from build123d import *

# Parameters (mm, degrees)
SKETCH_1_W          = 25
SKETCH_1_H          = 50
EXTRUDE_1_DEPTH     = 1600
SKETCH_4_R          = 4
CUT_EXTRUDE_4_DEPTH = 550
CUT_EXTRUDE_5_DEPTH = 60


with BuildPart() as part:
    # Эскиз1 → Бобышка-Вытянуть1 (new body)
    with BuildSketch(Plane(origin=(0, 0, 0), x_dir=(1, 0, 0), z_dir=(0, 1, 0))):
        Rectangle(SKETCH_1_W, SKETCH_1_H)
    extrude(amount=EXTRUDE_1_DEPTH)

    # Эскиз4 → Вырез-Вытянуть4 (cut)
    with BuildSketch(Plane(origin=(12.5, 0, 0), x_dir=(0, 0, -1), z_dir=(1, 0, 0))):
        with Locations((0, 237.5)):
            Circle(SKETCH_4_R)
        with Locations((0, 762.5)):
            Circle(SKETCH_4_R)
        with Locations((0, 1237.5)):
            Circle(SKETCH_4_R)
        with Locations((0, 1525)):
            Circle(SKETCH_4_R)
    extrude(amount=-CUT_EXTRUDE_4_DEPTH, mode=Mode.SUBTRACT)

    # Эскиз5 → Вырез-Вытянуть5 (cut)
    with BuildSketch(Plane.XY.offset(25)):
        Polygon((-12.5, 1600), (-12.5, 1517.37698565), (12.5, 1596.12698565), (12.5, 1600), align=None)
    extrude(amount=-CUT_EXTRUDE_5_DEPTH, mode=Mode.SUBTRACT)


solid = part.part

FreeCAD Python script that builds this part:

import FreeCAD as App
import Part
import Sketcher

V = App.Vector


def add_polygon(sketch, points):
    """Adds a closed chain of lines whose ends are joined by coincident constraints."""
    first, n = sketch.GeometryCount, len(points)
    for a, b in zip(points, points[1:] + points[:1]):
        sketch.addGeometry(Part.LineSegment(App.Vector(*a, 0), App.Vector(*b, 0)), False)
    for i in range(n):
        sketch.addConstraint(Sketcher.Constraint("Coincident", first + i, 2, first + (i + 1) % n, 1))

doc = App.newDocument("Part")
body = doc.addObject("PartDesign::Body", "Body")

sketch1 = body.newObject("Sketcher::SketchObject", "Sketch")
sketch1.AttachmentSupport = (doc.getObject("XZ_Plane"), [""])
sketch1.MapMode = "FlatFace"
add_polygon(sketch1, [(-12.5, -25), (-12.5, 25), (12.5, 25), (12.5, -25)])
sketch1.addConstraint([
    Sketcher.Constraint("Vertical", 0),
    Sketcher.Constraint("Horizontal", 1),
    Sketcher.Constraint("Vertical", 2),
    Sketcher.Constraint("Horizontal", 3),
    Sketcher.Constraint("Symmetric", 0, 2, 2, 2, -1, 1),
    Sketcher.Constraint("DistanceX", 1, 1, 1, 2, 25.0),
    Sketcher.Constraint("DistanceY", 0, 1, 0, 2, 50.0),
])
pad1 = body.newObject("PartDesign::Pad", "Pad")
pad1.Profile = sketch1
pad1.Length = 1600
pad1.Reversed = True

sketch2 = body.newObject("Sketcher::SketchObject", "Sketch001")
sketch2.AttachmentSupport = (doc.getObject("YZ_Plane"), [""])
sketch2.MapMode = "FlatFace"
sketch2.AttachmentOffset = App.Placement(V(0, 0, 12.5), App.Rotation())
sketch2.addGeometry([
    Part.Circle(V(237.5, 0, 0), V(0, 0, 1), 4),
    Part.Circle(V(762.5, 0, 0), V(0, 0, 1), 4),
    Part.Circle(V(1237.5, 0, 0), V(0, 0, 1), 4),
    Part.Circle(V(1525, 0, 0), V(0, 0, 1), 4),
], False)
sketch2.addConstraint([
    Sketcher.Constraint("Equal", 0, 1),
    Sketcher.Constraint("Equal", 1, 2),
    Sketcher.Constraint("Equal", 2, 3),
    Sketcher.Constraint("PointOnObject", 0, 3, -1),
    Sketcher.Constraint("PointOnObject", 1, 3, -1),
    Sketcher.Constraint("PointOnObject", 2, 3, -1),
    Sketcher.Constraint("PointOnObject", 3, 3, -1),
    Sketcher.Constraint("Diameter", 0, 8.0),
    Sketcher.Constraint("DistanceX", -1, 1, 3, 3, 1525.0),
    Sketcher.Constraint("DistanceX", 0, 3, 1, 3, 525.0),
    Sketcher.Constraint("DistanceX", 1, 3, 2, 3, 475.0),
    Sketcher.Constraint("DistanceX", -1, 1, 0, 3, 237.5),
])
pocket1 = body.newObject("PartDesign::Pocket", "Pocket")
pocket1.Profile = sketch2
pocket1.Length = 550

sketch3 = body.newObject("Sketcher::SketchObject", "Sketch002")
sketch3.AttachmentSupport = (doc.getObject("XY_Plane"), [""])
sketch3.MapMode = "FlatFace"
sketch3.AttachmentOffset = App.Placement(V(0, 0, 25), App.Rotation())
add_polygon(sketch3, [(-12.5, 1600), (-12.5, 1517.376986), (12.5, 1596.126986), (12.5, 1600)])
sketch3.addConstraint([
    Sketcher.Constraint("Vertical", 0),
    Sketcher.Constraint("Vertical", 2),
    Sketcher.Constraint("Horizontal", 3),
    Sketcher.Constraint("DistanceX", 3, 2, 3, 1, 25.0),
    Sketcher.Constraint("DistanceY", -1, 1, 2, 2, 1600.0),
    Sketcher.Constraint("DistanceX", 0, 2, -1, 1, 12.5),
    Sketcher.Constraint("DistanceY", 0, 2, 1, 2, 78.75),
    Sketcher.Constraint("DistanceY", 0, 2, 0, 1, 82.623014),
])
pocket2 = body.newObject("PartDesign::Pocket", "Pocket001")
pocket2.Profile = sketch3
pocket2.Length = 60

doc.recompute()
